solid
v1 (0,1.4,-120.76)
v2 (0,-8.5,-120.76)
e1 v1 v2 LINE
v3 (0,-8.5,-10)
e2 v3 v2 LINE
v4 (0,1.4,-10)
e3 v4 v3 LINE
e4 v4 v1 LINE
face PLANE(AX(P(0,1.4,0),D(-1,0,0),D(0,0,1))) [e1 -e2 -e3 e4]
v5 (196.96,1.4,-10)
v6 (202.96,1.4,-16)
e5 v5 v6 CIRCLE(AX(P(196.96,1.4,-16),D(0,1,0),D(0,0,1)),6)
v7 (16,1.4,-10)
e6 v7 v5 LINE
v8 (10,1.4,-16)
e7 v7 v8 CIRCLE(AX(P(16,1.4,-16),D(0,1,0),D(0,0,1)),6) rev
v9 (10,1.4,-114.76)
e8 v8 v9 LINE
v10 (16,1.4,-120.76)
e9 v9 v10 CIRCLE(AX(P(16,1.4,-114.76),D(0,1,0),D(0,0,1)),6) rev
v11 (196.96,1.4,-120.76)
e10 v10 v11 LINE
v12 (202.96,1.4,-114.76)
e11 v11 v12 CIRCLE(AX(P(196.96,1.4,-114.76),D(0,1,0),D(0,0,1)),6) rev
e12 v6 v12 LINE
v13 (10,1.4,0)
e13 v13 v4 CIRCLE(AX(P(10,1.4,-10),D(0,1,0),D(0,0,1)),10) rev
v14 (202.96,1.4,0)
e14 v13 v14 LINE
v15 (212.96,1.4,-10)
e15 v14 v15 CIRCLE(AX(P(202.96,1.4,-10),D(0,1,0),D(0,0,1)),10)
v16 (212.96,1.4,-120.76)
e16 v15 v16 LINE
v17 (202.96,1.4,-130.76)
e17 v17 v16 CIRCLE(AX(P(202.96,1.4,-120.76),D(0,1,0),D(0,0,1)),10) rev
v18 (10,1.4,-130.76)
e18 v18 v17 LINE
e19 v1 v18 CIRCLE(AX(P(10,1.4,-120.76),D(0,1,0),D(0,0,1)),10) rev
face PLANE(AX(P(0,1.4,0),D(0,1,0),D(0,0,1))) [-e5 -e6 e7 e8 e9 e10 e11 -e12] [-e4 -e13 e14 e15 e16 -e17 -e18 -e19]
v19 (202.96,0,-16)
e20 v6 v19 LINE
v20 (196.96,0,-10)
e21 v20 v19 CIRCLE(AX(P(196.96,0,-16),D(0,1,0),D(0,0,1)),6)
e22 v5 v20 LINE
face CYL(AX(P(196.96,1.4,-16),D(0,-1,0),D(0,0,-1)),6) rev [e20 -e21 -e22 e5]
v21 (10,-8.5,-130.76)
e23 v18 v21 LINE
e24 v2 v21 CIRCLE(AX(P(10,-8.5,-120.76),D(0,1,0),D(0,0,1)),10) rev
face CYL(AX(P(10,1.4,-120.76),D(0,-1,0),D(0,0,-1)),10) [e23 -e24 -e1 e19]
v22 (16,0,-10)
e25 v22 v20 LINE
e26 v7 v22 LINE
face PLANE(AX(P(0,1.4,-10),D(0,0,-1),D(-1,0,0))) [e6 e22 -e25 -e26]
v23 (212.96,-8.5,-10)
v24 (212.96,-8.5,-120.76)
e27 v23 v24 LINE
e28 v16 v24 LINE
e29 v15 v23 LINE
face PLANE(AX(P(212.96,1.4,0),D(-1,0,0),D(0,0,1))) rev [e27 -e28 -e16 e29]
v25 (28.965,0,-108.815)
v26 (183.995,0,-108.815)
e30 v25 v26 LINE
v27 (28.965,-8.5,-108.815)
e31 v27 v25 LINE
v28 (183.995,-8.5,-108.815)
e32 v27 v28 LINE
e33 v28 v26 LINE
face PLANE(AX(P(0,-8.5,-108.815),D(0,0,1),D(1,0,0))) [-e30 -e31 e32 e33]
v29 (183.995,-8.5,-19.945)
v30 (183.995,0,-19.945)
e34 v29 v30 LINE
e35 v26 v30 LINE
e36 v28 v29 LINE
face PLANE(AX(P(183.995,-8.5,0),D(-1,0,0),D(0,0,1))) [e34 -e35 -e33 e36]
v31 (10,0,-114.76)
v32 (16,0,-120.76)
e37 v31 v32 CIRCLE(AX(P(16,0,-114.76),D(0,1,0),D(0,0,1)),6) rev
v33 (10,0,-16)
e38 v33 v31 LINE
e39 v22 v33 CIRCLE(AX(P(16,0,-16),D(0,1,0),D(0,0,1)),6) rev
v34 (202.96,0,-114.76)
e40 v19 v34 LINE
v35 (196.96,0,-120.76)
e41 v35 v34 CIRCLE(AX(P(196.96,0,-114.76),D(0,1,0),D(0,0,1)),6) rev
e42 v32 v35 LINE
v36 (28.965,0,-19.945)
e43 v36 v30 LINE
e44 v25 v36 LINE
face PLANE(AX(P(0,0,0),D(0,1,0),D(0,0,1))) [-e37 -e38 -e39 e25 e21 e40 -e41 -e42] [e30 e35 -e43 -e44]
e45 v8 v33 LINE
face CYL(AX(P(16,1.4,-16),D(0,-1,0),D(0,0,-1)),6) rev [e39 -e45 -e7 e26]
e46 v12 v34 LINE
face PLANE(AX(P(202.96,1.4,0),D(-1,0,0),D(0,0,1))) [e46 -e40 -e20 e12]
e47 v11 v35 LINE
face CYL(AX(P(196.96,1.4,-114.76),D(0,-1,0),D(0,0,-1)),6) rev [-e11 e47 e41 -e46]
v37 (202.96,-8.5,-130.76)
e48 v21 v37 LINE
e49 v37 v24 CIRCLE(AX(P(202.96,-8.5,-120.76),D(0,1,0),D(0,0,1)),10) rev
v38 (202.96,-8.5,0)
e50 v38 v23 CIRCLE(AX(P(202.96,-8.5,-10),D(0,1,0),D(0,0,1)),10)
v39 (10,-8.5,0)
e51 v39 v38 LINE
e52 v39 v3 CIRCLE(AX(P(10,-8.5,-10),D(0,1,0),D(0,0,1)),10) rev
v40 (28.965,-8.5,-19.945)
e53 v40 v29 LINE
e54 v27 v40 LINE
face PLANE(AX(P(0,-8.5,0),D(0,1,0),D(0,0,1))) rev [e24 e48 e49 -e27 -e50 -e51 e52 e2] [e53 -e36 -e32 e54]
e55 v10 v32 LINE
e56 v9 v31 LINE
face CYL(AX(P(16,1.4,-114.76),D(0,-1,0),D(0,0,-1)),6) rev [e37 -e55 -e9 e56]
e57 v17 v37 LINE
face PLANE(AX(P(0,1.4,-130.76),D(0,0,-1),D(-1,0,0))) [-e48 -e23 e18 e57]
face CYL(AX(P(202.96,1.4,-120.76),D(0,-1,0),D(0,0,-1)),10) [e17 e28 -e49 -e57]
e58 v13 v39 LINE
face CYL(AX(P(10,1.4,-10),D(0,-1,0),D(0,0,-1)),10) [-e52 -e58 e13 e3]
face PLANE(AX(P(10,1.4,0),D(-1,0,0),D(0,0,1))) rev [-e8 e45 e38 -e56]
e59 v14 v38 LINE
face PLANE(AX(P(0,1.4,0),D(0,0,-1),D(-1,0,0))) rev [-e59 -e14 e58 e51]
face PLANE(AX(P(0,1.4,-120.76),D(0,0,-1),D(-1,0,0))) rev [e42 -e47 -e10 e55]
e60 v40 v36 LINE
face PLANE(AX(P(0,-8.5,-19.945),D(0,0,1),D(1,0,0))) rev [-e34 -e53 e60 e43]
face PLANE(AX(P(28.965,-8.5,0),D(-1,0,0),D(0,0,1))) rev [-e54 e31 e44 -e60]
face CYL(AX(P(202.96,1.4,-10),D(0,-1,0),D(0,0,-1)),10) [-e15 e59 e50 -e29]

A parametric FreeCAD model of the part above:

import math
import FreeCAD as App
import Part
import Sketcher
Q = App.Units.Quantity

doc = App.newDocument("Part")
body = doc.addObject("PartDesign::Body", "Body")

sketch1 = body.newObject("Sketcher::SketchObject", "Sketch")
sketch1.AttachmentSupport = (doc.getObject("XZ_Plane"), [""])
sketch1.MapMode = "FlatFace"
sketch1.addGeometry([
    Part.ArcOfCircle(Part.Circle(App.Vector(10, -120.76, 0), App.Vector(0, 0, 1), 10), math.radians(180), math.radians(270)),
    Part.LineSegment(App.Vector(0, -120.76, 0), App.Vector(0, -10, 0)),
    Part.ArcOfCircle(Part.Circle(App.Vector(10, -10, 0), App.Vector(0, 0, 1), 10), math.radians(90), math.radians(180)),
    Part.LineSegment(App.Vector(10, 0, 0), App.Vector(202.96, 0, 0)),
    Part.ArcOfCircle(Part.Circle(App.Vector(202.96, -10, 0), App.Vector(0, 0, 1), 10), math.radians(0), math.radians(90)),
    Part.LineSegment(App.Vector(212.96, -10, 0), App.Vector(212.96, -120.76, 0)),
    Part.ArcOfCircle(Part.Circle(App.Vector(202.96, -120.76, 0), App.Vector(0, 0, 1), 10), math.radians(-90), math.radians(0)),
    Part.LineSegment(App.Vector(202.96, -130.76, 0), App.Vector(10, -130.76, 0)),
    Part.LineSegment(App.Vector(10, -16, 0), App.Vector(10, -114.76, 0)),
    Part.ArcOfCircle(Part.Circle(App.Vector(16, -114.76, 0), App.Vector(0, 0, 1), 6), math.radians(180), math.radians(270)),
    Part.LineSegment(App.Vector(16, -120.76, 0), App.Vector(196.96, -120.76, 0)),
    Part.ArcOfCircle(Part.Circle(App.Vector(196.96, -114.76, 0), App.Vector(0, 0, 1), 6), math.radians(-90), math.radians(0)),
    Part.LineSegment(App.Vector(202.96, -114.76, 0), App.Vector(202.96, -16, 0)),
    Part.ArcOfCircle(Part.Circle(App.Vector(196.96, -16, 0), App.Vector(0, 0, 1), 6), math.radians(0), math.radians(90)),
    Part.LineSegment(App.Vector(196.96, -10, 0), App.Vector(16, -10, 0)),
    Part.ArcOfCircle(Part.Circle(App.Vector(16, -16, 0), App.Vector(0, 0, 1), 6), math.radians(90), math.radians(180)),
], False)
sketch1.addConstraint([
    Sketcher.Constraint("Tangent", 0, 1, 1, 1),
    Sketcher.Constraint("Tangent", 1, 2, 2, 2),
    Sketcher.Constraint("Tangent", 2, 1, 3, 1),
    Sketcher.Constraint("Tangent", 3, 2, 4, 2),
    Sketcher.Constraint("Tangent", 4, 1, 5, 1),
    Sketcher.Constraint("Tangent", 5, 2, 6, 2),
    Sketcher.Constraint("Tangent", 6, 1, 7, 1),
    Sketcher.Constraint("Tangent", 7, 2, 0, 2),
    Sketcher.Constraint("Tangent", 8, 2, 9, 1),
    Sketcher.Constraint("Tangent", 9, 2, 10, 1),
    Sketcher.Constraint("Tangent", 10, 2, 11, 1),
    Sketcher.Constraint("Tangent", 11, 2, 12, 1),
    Sketcher.Constraint("Tangent", 12, 2, 13, 1),
    Sketcher.Constraint("Tangent", 13, 2, 14, 1),
    Sketcher.Constraint("Tangent", 14, 2, 15, 1),
    Sketcher.Constraint("Tangent", 15, 2, 8, 1),
    Sketcher.Constraint("Vertical", 1),
    Sketcher.Constraint("Horizontal", 3),
    Sketcher.Constraint("Vertical", 5),
    Sketcher.Constraint("Horizontal", 7),
    Sketcher.Constraint("Vertical", 8),
    Sketcher.Constraint("Horizontal", 10),
    Sketcher.Constraint("Vertical", 12),
    Sketcher.Constraint("Horizontal", 14),
    Sketcher.Constraint("Equal", 0, 2),
    Sketcher.Constraint("Equal", 2, 4),
    Sketcher.Constraint("Equal", 4, 6),
    Sketcher.Constraint("Equal", 9, 11),
    Sketcher.Constraint("Equal", 11, 13),
    Sketcher.Constraint("Equal", 13, 15),
    Sketcher.Constraint("PointOnObject", 0, 1, -2),
    Sketcher.Constraint("PointOnObject", 2, 1, -1),
    Sketcher.Constraint("Horizontal", 5, 2, 9, 2),
    Sketcher.Constraint("Horizontal", 4, 1, 13, 2),
    Sketcher.Constraint("Vertical", 7, 2, 8, 2),
    Sketcher.Constraint("Vertical", 6, 1, 11, 2),
    Sketcher.Constraint("Radius", 0, Q("10 mm")),
    Sketcher.Constraint("Radius", 9, Q("6 mm")),
    Sketcher.Constraint("DistanceX", 3, 1, 3, 2, Q("192.96 mm")),
    Sketcher.Constraint("DistanceY", 1, 1, 1, 2, Q("110.76 mm")),
])
pad1 = body.newObject("PartDesign::Pad", "Pad")
pad1.Profile = sketch1
pad1.Length = 1.4
pad1.Reversed = True

sketch2 = body.newObject("Sketcher::SketchObject", "Sketch001")
sketch2.AttachmentSupport = (doc.getObject("XZ_Plane"), [""])
sketch2.MapMode = "FlatFace"
sketch2.AttachmentOffset = App.Placement(App.Vector(0, 0, 8.5), App.Rotation())
sketch2.addGeometry([
    Part.ArcOfCircle(Part.Circle(App.Vector(10, -10, 0), App.Vector(0, 0, 1), 10), math.radians(90), math.radians(180)),
    Part.LineSegment(App.Vector(10, 0, 0), App.Vector(202.96, 0, 0)),
    Part.ArcOfCircle(Part.Circle(App.Vector(202.96, -10, 0), App.Vector(0, 0, 1), 10), math.radians(0), math.radians(90)),
    Part.LineSegment(App.Vector(212.96, -10, 0), App.Vector(212.96, -120.76, 0)),
    Part.ArcOfCircle(Part.Circle(App.Vector(202.96, -120.76, 0), App.Vector(0, 0, 1), 10), math.radians(-90), math.radians(0)),
    Part.LineSegment(App.Vector(202.96, -130.76, 0), App.Vector(10, -130.76, 0)),
    Part.ArcOfCircle(Part.Circle(App.Vector(10, -120.76, 0), App.Vector(0, 0, 1), 10), math.radians(180), math.radians(270)),
    Part.LineSegment(App.Vector(0, -120.76, 0), App.Vector(0, -10, 0)),
    Part.LineSegment(App.Vector(183.995, -19.945, 0), App.Vector(28.965, -19.945, 0)),
    Part.LineSegment(App.Vector(28.965, -19.945, 0), App.Vector(28.965, -108.815, 0)),
    Part.LineSegment(App.Vector(28.965, -108.815, 0), App.Vector(183.995, -108.815, 0)),
    Part.LineSegment(App.Vector(183.995, -108.815, 0), App.Vector(183.995, -19.945, 0)),
], False)
sketch2.addConstraint([
    Sketcher.Constraint("Tangent", 0, 1, 1, 1),
    Sketcher.Constraint("Tangent", 1, 2, 2, 2),
    Sketcher.Constraint("Tangent", 2, 1, 3, 1),
    Sketcher.Constraint("Tangent", 3, 2, 4, 2),
    Sketcher.Constraint("Tangent", 4, 1, 5, 1),
    Sketcher.Constraint("Tangent", 5, 2, 6, 2),
    Sketcher.Constraint("Tangent", 6, 1, 7, 1),
    Sketcher.Constraint("Tangent", 7, 2, 0, 2),
    Sketcher.Constraint("Coincident", 8, 2, 9, 1),
    Sketcher.Constraint("Coincident", 9, 2, 10, 1),
    Sketcher.Constraint("Coincident", 10, 2, 11, 1),
    Sketcher.Constraint("Coincident", 11, 2, 8, 1),
    Sketcher.Constraint("Horizontal", 1),
    Sketcher.Constraint("Vertical", 3),
    Sketcher.Constraint("Horizontal", 5),
    Sketcher.Constraint("Vertical", 7),
    Sketcher.Constraint("Horizontal", 8),
    Sketcher.Constraint("Vertical", 9),
    Sketcher.Constraint("Horizontal", 10),
    Sketcher.Constraint("Vertical", 11),
    Sketcher.Constraint("Equal", 0, 2),
    Sketcher.Constraint("Equal", 2, 4),
    Sketcher.Constraint("Equal", 4, 6),
    Sketcher.Constraint("PointOnObject", 0, 1, -1),
    Sketcher.Constraint("PointOnObject", 6, 1, -2),
    Sketcher.Constraint("Radius", 0, Q("10 mm")),
    Sketcher.Constraint("DistanceX", 1, 1, 1, 2, Q("192.96 mm")),
    Sketcher.Constraint("DistanceX", 8, 2, 8, 1, Q("155.03 mm")),
    Sketcher.Constraint("DistanceY", 3, 2, 3, 1, Q("110.76 mm")),
    Sketcher.Constraint("DistanceY", 9, 2, 9, 1, Q("88.87 mm")),
    Sketcher.Constraint("DistanceX", -1, 1, 8, 2, Q("28.965 mm")),
    Sketcher.Constraint("DistanceY", 8, 2, -1, 1, Q("19.945 mm")),
])
pad2 = body.newObject("PartDesign::Pad", "Pad001")
pad2.Profile = sketch2
pad2.Length = 8.5
pad2.Reversed = True

doc.recompute()
